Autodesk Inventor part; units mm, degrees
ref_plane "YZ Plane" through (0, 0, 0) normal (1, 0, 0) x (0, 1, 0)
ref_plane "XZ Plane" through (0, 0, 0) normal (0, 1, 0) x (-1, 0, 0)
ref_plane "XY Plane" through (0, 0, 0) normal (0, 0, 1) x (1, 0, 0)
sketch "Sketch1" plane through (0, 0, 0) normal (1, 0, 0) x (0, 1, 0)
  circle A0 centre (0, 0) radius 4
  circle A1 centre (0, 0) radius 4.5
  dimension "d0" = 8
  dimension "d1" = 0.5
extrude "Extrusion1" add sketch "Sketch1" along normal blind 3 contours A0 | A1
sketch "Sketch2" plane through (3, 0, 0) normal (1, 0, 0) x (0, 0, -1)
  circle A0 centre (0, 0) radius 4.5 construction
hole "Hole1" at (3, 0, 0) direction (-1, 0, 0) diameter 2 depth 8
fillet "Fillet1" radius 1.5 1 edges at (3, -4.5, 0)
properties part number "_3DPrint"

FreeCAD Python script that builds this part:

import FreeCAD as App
import Part
import Sketcher
from FreeCAD import Vector
Q = App.Units.Quantity


def edges_at(feature, points):
    """Names of the edges that pass closest to the given points."""
    edges = feature.Shape.Edges
    near = lambda p: min(range(len(edges)), key=lambda i: edges[i].distToShape(Part.Vertex(*p))[0])
    return sorted({f"Edge{near(p) + 1}" for p in points})

doc = App.newDocument("Part")
params = doc.addObject("Spreadsheet::Sheet", "Params")
for row, (alias, value) in enumerate([
    ("sketch1_diameter", "9 mm"),
    ("pad1_length", "3 mm"),
    ("sketch2_diameter", "2 mm"),
    ("hole_diameter", "2 mm"),
    ("hole_depth", "8 mm"),
    ("fillet_radius", "1.5 mm"),
], start=1):
    params.set(f"A{row}", alias)
    params.set(f"B{row}", "=" + value)
    params.setAlias(f"B{row}", alias)

body = doc.addObject("PartDesign::Body", "Body")

# Sketch on YZ plane
sketch1 = body.newObject("Sketcher::SketchObject", "Sketch")
sketch1.AttachmentSupport = (doc.getObject("YZ_Plane"), [""])
sketch1.MapMode = "FlatFace"
sketch1.addGeometry(Part.Circle(Vector(0, 0, 0), Vector(0, 0, 1), 4.5), False)
sketch1.addConstraint(Sketcher.Constraint("Coincident", 0, 3, -1, 1))
sketch1.addConstraint(Sketcher.Constraint("Diameter", 0, Q("9 mm")))
sketch1.setExpression("Constraints[1]", "Params.sketch1_diameter")
pad1 = body.newObject("PartDesign::Pad", "Pad")
pad1.Profile = sketch1
pad1.setExpression("Length", "Params.pad1_length")

# Sketch on YZ plane
sketch2 = body.newObject("Sketcher::SketchObject", "Sketch001")
sketch2.AttachmentSupport = (doc.getObject("YZ_Plane"), [""])
sketch2.MapMode = "FlatFace"
sketch2.AttachmentOffset = App.Placement(Vector(0, 0, 3), App.Rotation())
sketch2.addGeometry(Part.Circle(Vector(0, 0, 0), Vector(0, 0, 1), 1), False)
sketch2.addConstraint(Sketcher.Constraint("Coincident", 0, 3, -1, 1))
sketch2.addConstraint(Sketcher.Constraint("Diameter", 0, Q("2 mm")))
sketch2.setExpression("Constraints[1]", "Params.sketch2_diameter")
doc.recompute()
hole = body.newObject("PartDesign::Hole", "Hole")
hole.Profile = sketch2
hole.ThreadType = "None"
hole.setExpression("Diameter", "Params.hole_diameter")
hole.DepthType = "Dimension"
hole.setExpression("Depth", "Params.hole_depth")
hole.DrillPoint = "Flat"
doc.recompute()

fillet = body.newObject("PartDesign::Fillet", "Fillet")
fillet.Base = (hole, edges_at(hole, [(3, -4.5, 0)]))
fillet.setExpression("Radius", "Params.fillet_radius")

doc.recompute()
